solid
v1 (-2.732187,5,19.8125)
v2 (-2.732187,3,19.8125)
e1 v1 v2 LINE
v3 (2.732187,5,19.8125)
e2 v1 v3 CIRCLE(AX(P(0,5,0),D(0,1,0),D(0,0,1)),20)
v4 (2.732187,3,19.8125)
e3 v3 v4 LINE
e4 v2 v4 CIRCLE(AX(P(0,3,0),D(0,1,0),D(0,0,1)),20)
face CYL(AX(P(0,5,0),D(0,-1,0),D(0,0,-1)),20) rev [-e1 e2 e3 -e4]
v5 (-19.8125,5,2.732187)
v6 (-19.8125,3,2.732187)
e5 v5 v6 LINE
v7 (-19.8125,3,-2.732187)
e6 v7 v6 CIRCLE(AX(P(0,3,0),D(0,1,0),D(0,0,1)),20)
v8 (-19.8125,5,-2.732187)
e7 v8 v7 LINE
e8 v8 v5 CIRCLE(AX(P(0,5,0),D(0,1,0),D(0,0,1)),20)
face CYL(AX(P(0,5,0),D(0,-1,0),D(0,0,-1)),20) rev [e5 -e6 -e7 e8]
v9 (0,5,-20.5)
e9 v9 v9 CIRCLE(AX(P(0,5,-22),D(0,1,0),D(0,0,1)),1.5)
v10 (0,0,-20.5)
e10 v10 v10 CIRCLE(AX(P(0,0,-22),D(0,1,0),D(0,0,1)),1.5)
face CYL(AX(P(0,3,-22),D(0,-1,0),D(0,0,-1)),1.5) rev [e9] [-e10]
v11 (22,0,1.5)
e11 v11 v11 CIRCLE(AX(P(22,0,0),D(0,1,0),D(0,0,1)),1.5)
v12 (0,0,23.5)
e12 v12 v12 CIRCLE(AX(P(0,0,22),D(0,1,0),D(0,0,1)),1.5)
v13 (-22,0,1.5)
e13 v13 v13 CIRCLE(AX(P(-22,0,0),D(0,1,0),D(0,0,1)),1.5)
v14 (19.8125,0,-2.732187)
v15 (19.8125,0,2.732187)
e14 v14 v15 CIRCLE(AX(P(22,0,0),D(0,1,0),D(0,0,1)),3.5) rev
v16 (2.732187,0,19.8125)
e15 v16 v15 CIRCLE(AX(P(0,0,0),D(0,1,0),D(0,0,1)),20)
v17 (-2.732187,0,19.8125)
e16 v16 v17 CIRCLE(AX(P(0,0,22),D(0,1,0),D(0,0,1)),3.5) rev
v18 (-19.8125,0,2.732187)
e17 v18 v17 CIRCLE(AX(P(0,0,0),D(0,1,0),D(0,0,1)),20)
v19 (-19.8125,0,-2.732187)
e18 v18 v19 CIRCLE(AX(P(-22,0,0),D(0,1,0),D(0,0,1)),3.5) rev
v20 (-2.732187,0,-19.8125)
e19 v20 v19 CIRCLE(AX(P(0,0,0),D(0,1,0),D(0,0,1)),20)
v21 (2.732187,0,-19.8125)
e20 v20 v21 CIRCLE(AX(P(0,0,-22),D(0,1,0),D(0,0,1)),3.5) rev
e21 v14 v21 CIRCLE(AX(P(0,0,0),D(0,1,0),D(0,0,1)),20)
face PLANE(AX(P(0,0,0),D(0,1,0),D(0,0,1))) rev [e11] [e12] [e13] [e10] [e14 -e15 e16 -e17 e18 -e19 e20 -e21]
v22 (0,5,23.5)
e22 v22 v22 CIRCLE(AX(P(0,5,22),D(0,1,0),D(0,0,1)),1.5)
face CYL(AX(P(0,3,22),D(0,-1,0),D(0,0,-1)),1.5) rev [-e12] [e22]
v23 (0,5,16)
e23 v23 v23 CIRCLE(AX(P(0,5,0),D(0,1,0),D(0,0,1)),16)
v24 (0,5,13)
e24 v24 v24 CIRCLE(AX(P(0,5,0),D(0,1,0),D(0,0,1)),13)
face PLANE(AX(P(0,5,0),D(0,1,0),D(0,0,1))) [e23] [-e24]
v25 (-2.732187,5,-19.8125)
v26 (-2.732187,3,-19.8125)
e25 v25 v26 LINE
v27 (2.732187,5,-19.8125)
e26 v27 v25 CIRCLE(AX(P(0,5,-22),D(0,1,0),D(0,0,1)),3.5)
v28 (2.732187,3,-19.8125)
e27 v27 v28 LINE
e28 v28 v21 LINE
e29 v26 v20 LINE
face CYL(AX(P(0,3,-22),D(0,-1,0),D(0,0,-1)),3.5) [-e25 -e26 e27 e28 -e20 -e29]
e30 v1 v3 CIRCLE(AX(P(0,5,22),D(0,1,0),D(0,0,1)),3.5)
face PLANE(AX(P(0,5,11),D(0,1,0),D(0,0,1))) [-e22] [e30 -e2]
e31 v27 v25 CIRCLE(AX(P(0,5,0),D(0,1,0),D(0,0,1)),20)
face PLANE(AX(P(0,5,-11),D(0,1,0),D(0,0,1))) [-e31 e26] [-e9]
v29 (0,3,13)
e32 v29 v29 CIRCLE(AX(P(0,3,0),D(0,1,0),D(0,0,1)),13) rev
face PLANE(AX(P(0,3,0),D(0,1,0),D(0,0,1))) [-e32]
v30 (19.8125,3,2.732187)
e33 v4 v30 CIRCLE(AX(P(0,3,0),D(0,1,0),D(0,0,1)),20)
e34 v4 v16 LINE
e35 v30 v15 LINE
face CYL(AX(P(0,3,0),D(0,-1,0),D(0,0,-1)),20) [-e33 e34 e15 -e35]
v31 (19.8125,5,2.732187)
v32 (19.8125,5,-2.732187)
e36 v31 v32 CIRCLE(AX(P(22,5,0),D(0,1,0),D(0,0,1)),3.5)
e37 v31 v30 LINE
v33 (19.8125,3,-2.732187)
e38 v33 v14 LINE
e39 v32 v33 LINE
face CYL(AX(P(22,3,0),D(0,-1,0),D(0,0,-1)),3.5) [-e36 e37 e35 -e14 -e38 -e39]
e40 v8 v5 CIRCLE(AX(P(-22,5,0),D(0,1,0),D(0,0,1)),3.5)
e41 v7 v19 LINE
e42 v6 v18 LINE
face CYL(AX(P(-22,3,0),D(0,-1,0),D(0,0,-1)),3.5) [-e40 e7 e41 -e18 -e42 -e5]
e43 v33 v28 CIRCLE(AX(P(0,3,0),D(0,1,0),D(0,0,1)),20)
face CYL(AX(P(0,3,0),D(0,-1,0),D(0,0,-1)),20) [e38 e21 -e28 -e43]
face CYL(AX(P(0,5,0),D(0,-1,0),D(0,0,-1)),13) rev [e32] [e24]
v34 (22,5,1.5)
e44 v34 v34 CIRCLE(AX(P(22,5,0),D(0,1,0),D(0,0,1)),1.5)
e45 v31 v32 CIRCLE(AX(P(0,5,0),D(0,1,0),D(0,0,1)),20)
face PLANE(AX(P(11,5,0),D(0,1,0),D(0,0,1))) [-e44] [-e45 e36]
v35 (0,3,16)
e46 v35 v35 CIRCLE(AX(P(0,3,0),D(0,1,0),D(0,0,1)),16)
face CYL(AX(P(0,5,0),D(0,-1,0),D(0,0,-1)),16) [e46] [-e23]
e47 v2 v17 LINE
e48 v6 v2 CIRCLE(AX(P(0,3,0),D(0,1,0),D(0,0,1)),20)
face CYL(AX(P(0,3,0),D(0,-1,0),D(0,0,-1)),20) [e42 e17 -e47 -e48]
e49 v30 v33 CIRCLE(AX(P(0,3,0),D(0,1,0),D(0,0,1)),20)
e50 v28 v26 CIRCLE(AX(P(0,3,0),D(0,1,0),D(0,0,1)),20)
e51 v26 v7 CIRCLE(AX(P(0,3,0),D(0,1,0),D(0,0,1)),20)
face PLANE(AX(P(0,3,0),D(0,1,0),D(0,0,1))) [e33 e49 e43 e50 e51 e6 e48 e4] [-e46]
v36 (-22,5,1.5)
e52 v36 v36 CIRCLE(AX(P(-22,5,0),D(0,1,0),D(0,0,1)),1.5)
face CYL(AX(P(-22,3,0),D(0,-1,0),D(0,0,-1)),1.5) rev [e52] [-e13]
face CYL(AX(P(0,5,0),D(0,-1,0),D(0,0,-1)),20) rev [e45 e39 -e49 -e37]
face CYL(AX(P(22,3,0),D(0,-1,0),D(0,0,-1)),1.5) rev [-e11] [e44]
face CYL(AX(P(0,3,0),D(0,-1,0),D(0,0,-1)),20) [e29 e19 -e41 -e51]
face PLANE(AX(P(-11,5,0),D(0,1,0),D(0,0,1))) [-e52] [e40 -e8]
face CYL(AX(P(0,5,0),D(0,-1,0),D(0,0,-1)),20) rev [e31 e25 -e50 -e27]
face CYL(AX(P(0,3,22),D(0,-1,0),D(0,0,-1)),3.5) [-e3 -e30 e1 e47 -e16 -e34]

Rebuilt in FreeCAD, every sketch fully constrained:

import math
import FreeCAD as App
import Part
import Sketcher
from FreeCAD import Vector
Q = App.Units.Quantity

doc = App.newDocument("Part")
body = doc.addObject("PartDesign::Body", "Body")

sketch1 = body.newObject("Sketcher::SketchObject", "Sketch")
sketch1.AttachmentSupport = (doc.getObject("XZ_Plane"), [""])
sketch1.MapMode = "FlatFace"
sketch1.addGeometry([
    Part.ArcOfCircle(Part.Circle(Vector(0, 0, 0), Vector(0, 0, 1), 20), math.radians(-82), math.radians(-8)),
    Part.ArcOfCircle(Part.Circle(Vector(0, -22, 0), Vector(0, 0, 1), 3.5), math.radians(141), math.radians(399)),
    Part.ArcOfCircle(Part.Circle(Vector(0, 0, 0), Vector(0, 0, 1), 20), math.radians(-172), math.radians(-98)),
    Part.ArcOfCircle(Part.Circle(Vector(-22, 0, 0), Vector(0, 0, 1), 3.5), math.radians(51), math.radians(309)),
    Part.ArcOfCircle(Part.Circle(Vector(0, 0, 0), Vector(0, 0, 1), 20), math.radians(98), math.radians(172)),
    Part.ArcOfCircle(Part.Circle(Vector(0, 22, 0), Vector(0, 0, 1), 3.5), math.radians(-39), math.radians(219)),
    Part.ArcOfCircle(Part.Circle(Vector(0, 0, 0), Vector(0, 0, 1), 20), math.radians(8), math.radians(82)),
    Part.ArcOfCircle(Part.Circle(Vector(22, 0, 0), Vector(0, 0, 1), 3.5), math.radians(-129), math.radians(129)),
    Part.Circle(Vector(0, 22, 0), Vector(0, 0, 1), 1.5),
    Part.Circle(Vector(-22, 0, 0), Vector(0, 0, 1), 1.5),
    Part.Circle(Vector(22, 0, 0), Vector(0, 0, 1), 1.5),
    Part.Circle(Vector(0, -22, 0), Vector(0, 0, 1), 1.5),
], False)
sketch1.addConstraint([
    Sketcher.Constraint("Coincident", 0, 1, 1, 2),
    Sketcher.Constraint("Coincident", 1, 1, 2, 2),
    Sketcher.Constraint("Coincident", 2, 1, 3, 2),
    Sketcher.Constraint("Coincident", 3, 1, 4, 2),
    Sketcher.Constraint("Coincident", 4, 1, 5, 2),
    Sketcher.Constraint("Coincident", 5, 1, 6, 2),
    Sketcher.Constraint("Coincident", 6, 1, 7, 2),
    Sketcher.Constraint("Coincident", 7, 1, 0, 2),
    Sketcher.Constraint("Coincident", 0, 3, -1, 1),
    Sketcher.Constraint("Coincident", 2, 3, -1, 1),
    Sketcher.Constraint("Coincident", 4, 3, -1, 1),
    Sketcher.Constraint("Coincident", 6, 3, -1, 1),
    Sketcher.Constraint("Coincident", 8, 3, 5, 3),
    Sketcher.Constraint("Coincident", 9, 3, 3, 3),
    Sketcher.Constraint("Coincident", 10, 3, 7, 3),
    Sketcher.Constraint("Coincident", 11, 3, 1, 3),
    Sketcher.Constraint("Equal", 0, 2),
    Sketcher.Constraint("Equal", 1, 3),
    Sketcher.Constraint("Equal", 2, 4),
    Sketcher.Constraint("Equal", 3, 5),
    Sketcher.Constraint("Equal", 4, 6),
    Sketcher.Constraint("Equal", 5, 7),
    Sketcher.Constraint("Equal", 8, 9),
    Sketcher.Constraint("Equal", 9, 10),
    Sketcher.Constraint("Equal", 10, 11),
    Sketcher.Constraint("Symmetric", 1, 3, 5, 3, -1, 1),
    Sketcher.Constraint("Symmetric", 3, 3, 7, 3, -1, 1),
    Sketcher.Constraint("PointOnObject", 1, 3, -2),
    Sketcher.Constraint("PointOnObject", 3, 3, -1),
    Sketcher.Constraint("Diameter", 8, Q("3 mm")),
    Sketcher.Constraint("Radius", 0, Q("20 mm")),
    Sketcher.Constraint("Radius", 1, Q("3.5 mm")),
    Sketcher.Constraint("DistanceY", 1, 3, -1, 1, Q("22 mm")),
    Sketcher.Constraint("DistanceX", 3, 3, -1, 1, Q("22 mm")),
])
pad1 = body.newObject("PartDesign::Pad", "Pad")
pad1.Profile = sketch1
pad1.Length = 3
pad1.Reversed = True

sketch2 = body.newObject("Sketcher::SketchObject", "Sketch001")
sketch2.AttachmentSupport = (doc.getObject("XZ_Plane"), [""])
sketch2.MapMode = "FlatFace"
sketch2.AttachmentOffset = App.Placement(Vector(0, 0, -3), App.Rotation())
sketch2.addGeometry([
    Part.ArcOfCircle(Part.Circle(Vector(0, 22, 0), Vector(0, 0, 1), 3.5), math.radians(-39), math.radians(219)),
    Part.ArcOfCircle(Part.Circle(Vector(0, 0, 0), Vector(0, 0, 1), 20), math.radians(82.15), math.radians(97.85)),
    Part.Circle(Vector(0, 22, 0), Vector(0, 0, 1), 1.5),
    Part.ArcOfCircle(Part.Circle(Vector(0, 0, 0), Vector(0, 0, 1), 20), math.radians(-7.85), math.radians(0)),
    Part.ArcOfCircle(Part.Circle(Vector(0, 0, 0), Vector(0, 0, 1), 20), math.radians(0), math.radians(7.85)),
    Part.ArcOfCircle(Part.Circle(Vector(22, 0, 0), Vector(0, 0, 1), 3.5), math.radians(-129), math.radians(129)),
    Part.Circle(Vector(22, 0, 0), Vector(0, 0, 1), 1.5),
    Part.ArcOfCircle(Part.Circle(Vector(0, 0, 0), Vector(0, 0, 1), 20), math.radians(-97.85), math.radians(-82.15)),
    Part.ArcOfCircle(Part.Circle(Vector(0, -22, 0), Vector(0, 0, 1), 3.5), math.radians(141), math.radians(399)),
    Part.Circle(Vector(0, -22, 0), Vector(0, 0, 1), 1.5),
    Part.ArcOfCircle(Part.Circle(Vector(0, 0, 0), Vector(0, 0, 1), 20), math.radians(172.15), math.radians(187.85)),
    Part.ArcOfCircle(Part.Circle(Vector(-22, 0, 0), Vector(0, 0, 1), 3.5), math.radians(51), math.radians(309)),
    Part.Circle(Vector(-22, 0, 0), Vector(0, 0, 1), 1.5),
    Part.Circle(Vector(0, 0, 0), Vector(0, 0, 1), 16),
    Part.Circle(Vector(0, 0, 0), Vector(0, 0, 1), 13),
], False)
sketch2.addConstraint([
    Sketcher.Constraint("Coincident", 0, 1, 1, 1),
    Sketcher.Constraint("Coincident", 1, 2, 0, 2),
    Sketcher.Constraint("Tangent", 3, 2, 4, 1),
    Sketcher.Constraint("Coincident", 4, 2, 5, 2),
    Sketcher.Constraint("Coincident", 5, 1, 3, 1),
    Sketcher.Constraint("Coincident", 7, 1, 8, 1),
    Sketcher.Constraint("Coincident", 8, 2, 7, 2),
    Sketcher.Constraint("Coincident", 10, 1, 11, 1),
    Sketcher.Constraint("Coincident", 11, 2, 10, 2),
    Sketcher.Constraint("Coincident", 1, 3, -1, 1),
    Sketcher.Constraint("Coincident", 3, 3, -1, 1),
    Sketcher.Constraint("Coincident", 7, 3, -1, 1),
    Sketcher.Constraint("Coincident", 10, 3, -1, 1),
    Sketcher.Constraint("Coincident", 13, 3, -1, 1),
    Sketcher.Constraint("Coincident", 14, 3, -1, 1),
    Sketcher.Constraint("Coincident", 2, 3, 0, 3),
    Sketcher.Constraint("Coincident", 6, 3, 5, 3),
    Sketcher.Constraint("Coincident", 9, 3, 8, 3),
    Sketcher.Constraint("Coincident", 12, 3, 11, 3),
    Sketcher.Constraint("Equal", 1, 3),
    Sketcher.Constraint("Equal", 3, 4),
    Sketcher.Constraint("Equal", 0, 5),
    Sketcher.Constraint("Equal", 2, 6),
    Sketcher.Constraint("Equal", 4, 7),
    Sketcher.Constraint("Equal", 5, 8),
    Sketcher.Constraint("Equal", 6, 9),
    Sketcher.Constraint("Equal", 7, 10),
    Sketcher.Constraint("Equal", 8, 11),
    Sketcher.Constraint("Equal", 9, 12),
    Sketcher.Constraint("Symmetric", 0, 3, 8, 3, -1, 1),
    Sketcher.Constraint("Symmetric", 5, 3, 11, 3, -1, 1),
    Sketcher.Constraint("PointOnObject", 0, 3, -2),
    Sketcher.Constraint("PointOnObject", 5, 3, -1),
    Sketcher.Constraint("PointOnObject", 3, 2, -1),
    Sketcher.Constraint("Diameter", 2, Q("3 mm")),
    Sketcher.Constraint("Diameter", 13, Q("32 mm")),
    Sketcher.Constraint("Diameter", 14, Q("26 mm")),
    Sketcher.Constraint("Radius", 1, Q("20 mm")),
    Sketcher.Constraint("Radius", 0, Q("3.5 mm")),
    Sketcher.Constraint("DistanceY", -1, 1, 0, 3, Q("22 mm")),
    Sketcher.Constraint("DistanceX", -1, 1, 5, 3, Q("22 mm")),
])
pad2 = body.newObject("PartDesign::Pad", "Pad001")
pad2.Profile = sketch2
pad2.Length = 2
pad2.Reversed = True

doc.recompute()
